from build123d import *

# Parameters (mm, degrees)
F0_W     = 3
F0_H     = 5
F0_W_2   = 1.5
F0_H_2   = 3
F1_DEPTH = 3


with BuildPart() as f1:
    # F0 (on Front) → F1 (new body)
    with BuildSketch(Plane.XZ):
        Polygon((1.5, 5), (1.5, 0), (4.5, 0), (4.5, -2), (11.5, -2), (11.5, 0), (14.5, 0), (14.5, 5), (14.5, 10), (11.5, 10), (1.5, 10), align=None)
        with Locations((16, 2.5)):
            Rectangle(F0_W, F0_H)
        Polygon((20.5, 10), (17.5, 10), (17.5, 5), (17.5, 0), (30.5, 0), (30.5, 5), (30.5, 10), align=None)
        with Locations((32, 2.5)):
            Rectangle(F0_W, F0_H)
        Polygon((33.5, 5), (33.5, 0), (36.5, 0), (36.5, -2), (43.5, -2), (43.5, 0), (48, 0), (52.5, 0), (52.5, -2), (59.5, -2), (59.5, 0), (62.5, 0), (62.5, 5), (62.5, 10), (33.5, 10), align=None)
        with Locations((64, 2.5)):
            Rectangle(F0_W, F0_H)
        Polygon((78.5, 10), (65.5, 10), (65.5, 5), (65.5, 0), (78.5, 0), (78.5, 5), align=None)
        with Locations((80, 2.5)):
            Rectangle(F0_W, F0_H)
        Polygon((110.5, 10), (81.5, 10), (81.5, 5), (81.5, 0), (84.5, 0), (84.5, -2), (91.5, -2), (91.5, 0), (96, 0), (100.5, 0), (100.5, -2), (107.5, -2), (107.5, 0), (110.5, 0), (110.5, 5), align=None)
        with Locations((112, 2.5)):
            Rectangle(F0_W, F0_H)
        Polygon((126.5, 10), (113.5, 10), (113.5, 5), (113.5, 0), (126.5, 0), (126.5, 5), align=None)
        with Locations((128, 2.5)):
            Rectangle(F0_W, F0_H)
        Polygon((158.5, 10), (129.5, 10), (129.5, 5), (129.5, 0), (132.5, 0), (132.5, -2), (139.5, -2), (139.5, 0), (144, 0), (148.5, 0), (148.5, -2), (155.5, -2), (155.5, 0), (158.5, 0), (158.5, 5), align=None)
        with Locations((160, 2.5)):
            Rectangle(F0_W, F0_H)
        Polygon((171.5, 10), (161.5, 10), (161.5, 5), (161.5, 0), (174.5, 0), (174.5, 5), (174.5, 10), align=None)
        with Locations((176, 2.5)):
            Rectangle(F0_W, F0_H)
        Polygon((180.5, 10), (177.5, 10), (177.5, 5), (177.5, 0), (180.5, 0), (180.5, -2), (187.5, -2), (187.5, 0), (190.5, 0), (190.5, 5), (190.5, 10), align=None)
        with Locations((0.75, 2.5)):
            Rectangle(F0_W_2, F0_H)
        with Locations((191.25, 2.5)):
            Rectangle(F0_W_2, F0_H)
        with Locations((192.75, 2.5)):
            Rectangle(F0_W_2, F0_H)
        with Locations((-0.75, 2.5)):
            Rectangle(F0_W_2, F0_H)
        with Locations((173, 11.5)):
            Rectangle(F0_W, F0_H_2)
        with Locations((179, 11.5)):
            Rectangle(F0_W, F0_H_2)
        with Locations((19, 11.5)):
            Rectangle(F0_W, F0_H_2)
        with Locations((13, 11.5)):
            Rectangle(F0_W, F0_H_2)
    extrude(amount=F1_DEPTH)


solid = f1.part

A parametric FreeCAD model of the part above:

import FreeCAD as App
import Part
import Sketcher
from FreeCAD import Vector

doc = App.newDocument("Part")
body = doc.addObject("PartDesign::Body", "Body")

sketch1 = body.newObject("Sketcher::SketchObject", "Sketch")
sketch1.AttachmentSupport = (doc.getObject("XZ_Plane"), [""])
sketch1.MapMode = "FlatFace"
sketch1.addGeometry(Part.LineSegment(Vector(4.5, 0, 0), Vector(4.5, -2, 0)), False)
sketch1.addGeometry(Part.LineSegment(Vector(4.5, -2, 0), Vector(11.5, -2, 0)), False)
sketch1.addGeometry(Part.LineSegment(Vector(11.5, -2, 0), Vector(11.5, 0, 0)), False)
sketch1.addGeometry(Part.LineSegment(Vector(11.5, 0, 0), Vector(36.5, 0, 0)), False)
sketch1.addGeometry(Part.LineSegment(Vector(36.5, 0, 0), Vector(36.5, -2, 0)), False)
sketch1.addGeometry(Part.LineSegment(Vector(36.5, -2, 0), Vector(43.5, -2, 0)), False)
sketch1.addGeometry(Part.LineSegment(Vector(43.5, -2, 0), Vector(43.5, 0, 0)), False)
sketch1.addGeometry(Part.LineSegment(Vector(43.5, 0, 0), Vector(52.5, 0, 0)), False)
sketch1.addGeometry(Part.LineSegment(Vector(52.5, 0, 0), Vector(52.5, -2, 0)), False)
sketch1.addGeometry(Part.LineSegment(Vector(52.5, -2, 0), Vector(59.5, -2, 0)), False)
sketch1.addGeometry(Part.LineSegment(Vector(59.5, -2, 0), Vector(59.5, 0, 0)), False)
sketch1.addGeometry(Part.LineSegment(Vector(59.5, 0, 0), Vector(84.5, 0, 0)), False)
sketch1.addGeometry(Part.LineSegment(Vector(84.5, 0, 0), Vector(84.5, -2, 0)), False)
sketch1.addGeometry(Part.LineSegment(Vector(84.5, -2, 0), Vector(91.5, -2, 0)), False)
sketch1.addGeometry(Part.LineSegment(Vector(91.5, -2, 0), Vector(91.5, 0, 0)), False)
sketch1.addGeometry(Part.LineSegment(Vector(91.5, 0, 0), Vector(100.5, 0, 0)), False)
sketch1.addGeometry(Part.LineSegment(Vector(100.5, 0, 0), Vector(100.5, -2, 0)), False)
sketch1.addGeometry(Part.LineSegment(Vector(100.5, -2, 0), Vector(107.5, -2, 0)), False)
sketch1.addGeometry(Part.LineSegment(Vector(107.5, -2, 0), Vector(107.5, 0, 0)), False)
sketch1.addGeometry(Part.LineSegment(Vector(107.5, 0, 0), Vector(132.5, 0, 0)), False)
sketch1.addGeometry(Part.LineSegment(Vector(132.5, 0, 0), Vector(132.5, -2, 0)), False)
sketch1.addGeometry(Part.LineSegment(Vector(132.5, -2, 0), Vector(139.5, -2, 0)), False)
sketch1.addGeometry(Part.LineSegment(Vector(139.5, -2, 0), Vector(139.5, 0, 0)), False)
sketch1.addGeometry(Part.LineSegment(Vector(139.5, 0, 0), Vector(148.5, 0, 0)), False)
sketch1.addGeometry(Part.LineSegment(Vector(148.5, 0, 0), Vector(148.5, -2, 0)), False)
sketch1.addGeometry(Part.LineSegment(Vector(148.5, -2, 0), Vector(155.5, -2, 0)), False)
sketch1.addGeometry(Part.LineSegment(Vector(155.5, -2, 0), Vector(155.5, 0, 0)), False)
sketch1.addGeometry(Part.LineSegment(Vector(155.5, 0, 0), Vector(180.5, 0, 0)), False)
sketch1.addGeometry(Part.LineSegment(Vector(180.5, 0, 0), Vector(180.5, -2, 0)), False)
sketch1.addGeometry(Part.LineSegment(Vector(180.5, -2, 0), Vector(187.5, -2, 0)), False)
sketch1.addGeometry(Part.LineSegment(Vector(187.5, -2, 0), Vector(187.5, 0, 0)), False)
sketch1.addGeometry(Part.LineSegment(Vector(187.5, 0, 0), Vector(193.5, 0, 0)), False)
sketch1.addGeometry(Part.LineSegment(Vector(193.5, 0, 0), Vector(193.5, 5, 0)), False)
sketch1.addGeometry(Part.LineSegment(Vector(193.5, 5, 0), Vector(190.5, 5, 0)), False)
sketch1.addGeometry(Part.LineSegment(Vector(190.5, 5, 0), Vector(190.5, 10, 0)), False)
sketch1.addGeometry(Part.LineSegment(Vector(190.5, 10, 0), Vector(180.5, 10, 0)), False)
sketch1.addGeometry(Part.LineSegment(Vector(180.5, 10, 0), Vector(180.5, 13, 0)), False)
sketch1.addGeometry(Part.LineSegment(Vector(180.5, 13, 0), Vector(177.5, 13, 0)), False)
sketch1.addGeometry(Part.LineSegment(Vector(177.5, 13, 0), Vector(177.5, 5, 0)), False)
sketch1.addGeometry(Part.LineSegment(Vector(177.5, 5, 0), Vector(174.5, 5, 0)), False)
sketch1.addGeometry(Part.LineSegment(Vector(174.5, 5, 0), Vector(174.5, 13, 0)), False)
sketch1.addGeometry(Part.LineSegment(Vector(174.5, 13, 0), Vector(171.5, 13, 0)), False)
sketch1.addGeometry(Part.LineSegment(Vector(171.5, 13, 0), Vector(171.5, 10, 0)), False)
sketch1.addGeometry(Part.LineSegment(Vector(171.5, 10, 0), Vector(161.5, 10, 0)), False)
sketch1.addGeometry(Part.LineSegment(Vector(161.5, 10, 0), Vector(161.5, 5, 0)), False)
sketch1.addGeometry(Part.LineSegment(Vector(161.5, 5, 0), Vector(158.5, 5, 0)), False)
sketch1.addGeometry(Part.LineSegment(Vector(158.5, 5, 0), Vector(158.5, 10, 0)), False)
sketch1.addGeometry(Part.LineSegment(Vector(158.5, 10, 0), Vector(129.5, 10, 0)), False)
sketch1.addGeometry(Part.LineSegment(Vector(129.5, 10, 0), Vector(129.5, 5, 0)), False)
sketch1.addGeometry(Part.LineSegment(Vector(129.5, 5, 0), Vector(126.5, 5, 0)), False)
sketch1.addGeometry(Part.LineSegment(Vector(126.5, 5, 0), Vector(126.5, 10, 0)), False)
sketch1.addGeometry(Part.LineSegment(Vector(126.5, 10, 0), Vector(113.5, 10, 0)), False)
sketch1.addGeometry(Part.LineSegment(Vector(113.5, 10, 0), Vector(113.5, 5, 0)), False)
sketch1.addGeometry(Part.LineSegment(Vector(113.5, 5, 0), Vector(110.5, 5, 0)), False)
sketch1.addGeometry(Part.LineSegment(Vector(110.5, 5, 0), Vector(110.5, 10, 0)), False)
sketch1.addGeometry(Part.LineSegment(Vector(110.5, 10, 0), Vector(81.5, 10, 0)), False)
sketch1.addGeometry(Part.LineSegment(Vector(81.5, 10, 0), Vector(81.5, 5, 0)), False)
sketch1.addGeometry(Part.LineSegment(Vector(81.5, 5, 0), Vector(78.5, 5, 0)), False)
sketch1.addGeometry(Part.LineSegment(Vector(78.5, 5, 0), Vector(78.5, 10, 0)), False)
sketch1.addGeometry(Part.LineSegment(Vector(78.5, 10, 0), Vector(65.5, 10, 0)), False)
sketch1.addGeometry(Part.LineSegment(Vector(65.5, 10, 0), Vector(65.5, 5, 0)), False)
sketch1.addGeometry(Part.LineSegment(Vector(65.5, 5, 0), Vector(62.5, 5, 0)), False)
sketch1.addGeometry(Part.LineSegment(Vector(62.5, 5, 0), Vector(62.5, 10, 0)), False)
sketch1.addGeometry(Part.LineSegment(Vector(62.5, 10, 0), Vector(33.5, 10, 0)), False)
sketch1.addGeometry(Part.LineSegment(Vector(33.5, 10, 0), Vector(33.5, 5, 0)), False)
sketch1.addGeometry(Part.LineSegment(Vector(33.5, 5, 0), Vector(30.5, 5, 0)), False)
sketch1.addGeometry(Part.LineSegment(Vector(30.5, 5, 0), Vector(30.5, 10, 0)), False)
sketch1.addGeometry(Part.LineSegment(Vector(30.5, 10, 0), Vector(20.5, 10, 0)), False)
sketch1.addGeometry(Part.LineSegment(Vector(20.5, 10, 0), Vector(20.5, 13, 0)), False)
sketch1.addGeometry(Part.LineSegment(Vector(20.5, 13, 0), Vector(17.5, 13, 0)), False)
sketch1.addGeometry(Part.LineSegment(Vector(17.5, 13, 0), Vector(17.5, 5, 0)), False)
sketch1.addGeometry(Part.LineSegment(Vector(17.5, 5, 0), Vector(14.5, 5, 0)), False)
sketch1.addGeometry(Part.LineSegment(Vector(14.5, 5, 0), Vector(14.5, 13, 0)), False)
sketch1.addGeometry(Part.LineSegment(Vector(14.5, 13, 0), Vector(11.5, 13, 0)), False)
sketch1.addGeometry(Part.LineSegment(Vector(11.5, 13, 0), Vector(11.5, 10, 0)), False)
sketch1.addGeometry(Part.LineSegment(Vector(11.5, 10, 0), Vector(1.5, 10, 0)), False)
sketch1.addGeometry(Part.LineSegment(Vector(1.5, 10, 0), Vector(1.5, 5, 0)), False)
sketch1.addGeometry(Part.LineSegment(Vector(1.5, 5, 0), Vector(-1.5, 5, 0)), False)
sketch1.addGeometry(Part.LineSegment(Vector(-1.5, 5, 0), Vector(-1.5, 0, 0)), False)
sketch1.addGeometry(Part.LineSegment(Vector(-1.5, 0, 0), Vector(4.5, 0, 0)), False)
sketch1.addConstraint(Sketcher.Constraint("Coincident", 0, 2, 1, 1))
sketch1.addConstraint(Sketcher.Constraint("Coincident", 1, 2, 2, 1))
sketch1.addConstraint(Sketcher.Constraint("Coincident", 2, 2, 3, 1))
sketch1.addConstraint(Sketcher.Constraint("Coincident", 3, 2, 4, 1))
sketch1.addConstraint(Sketcher.Constraint("Coincident", 4, 2, 5, 1))
sketch1.addConstraint(Sketcher.Constraint("Coincident", 5, 2, 6, 1))
sketch1.addConstraint(Sketcher.Constraint("Coincident", 6, 2, 7, 1))
sketch1.addConstraint(Sketcher.Constraint("Coincident", 7, 2, 8, 1))
sketch1.addConstraint(Sketcher.Constraint("Coincident", 8, 2, 9, 1))
sketch1.addConstraint(Sketcher.Constraint("Coincident", 9, 2, 10, 1))
sketch1.addConstraint(Sketcher.Constraint("Coincident", 10, 2, 11, 1))
sketch1.addConstraint(Sketcher.Constraint("Coincident", 11, 2, 12, 1))
sketch1.addConstraint(Sketcher.Constraint("Coincident", 12, 2, 13, 1))
sketch1.addConstraint(Sketcher.Constraint("Coincident", 13, 2, 14, 1))
sketch1.addConstraint(Sketcher.Constraint("Coincident", 14, 2, 15, 1))
sketch1.addConstraint(Sketcher.Constraint("Coincident", 15, 2, 16, 1))
sketch1.addConstraint(Sketcher.Constraint("Coincident", 16, 2, 17, 1))
sketch1.addConstraint(Sketcher.Constraint("Coincident", 17, 2, 18, 1))
sketch1.addConstraint(Sketcher.Constraint("Coincident", 18, 2, 19, 1))
sketch1.addConstraint(Sketcher.Constraint("Coincident", 19, 2, 20, 1))
sketch1.addConstraint(Sketcher.Constraint("Coincident", 20, 2, 21, 1))
sketch1.addConstraint(Sketcher.Constraint("Coincident", 21, 2, 22, 1))
sketch1.addConstraint(Sketcher.Constraint("Coincident", 22, 2, 23, 1))
sketch1.addConstraint(Sketcher.Constraint("Coincident", 23, 2, 24, 1))
sketch1.addConstraint(Sketcher.Constraint("Coincident", 24, 2, 25, 1))
sketch1.addConstraint(Sketcher.Constraint("Coincident", 25, 2, 26, 1))
sketch1.addConstraint(Sketcher.Constraint("Coincident", 26, 2, 27, 1))
sketch1.addConstraint(Sketcher.Constraint("Coincident", 27, 2, 28, 1))
sketch1.addConstraint(Sketcher.Constraint("Coincident", 28, 2, 29, 1))
sketch1.addConstraint(Sketcher.Constraint("Coincident", 29, 2, 30, 1))
sketch1.addConstraint(Sketcher.Constraint("Coincident", 30, 2, 31, 1))
sketch1.addConstraint(Sketcher.Constraint("Coincident", 31, 2, 32, 1))
sketch1.addConstraint(Sketcher.Constraint("Coincident", 32, 2, 33, 1))
sketch1.addConstraint(Sketcher.Constraint("Coincident", 33, 2, 34, 1))
sketch1.addConstraint(Sketcher.Constraint("Coincident", 34, 2, 35, 1))
sketch1.addConstraint(Sketcher.Constraint("Coincident", 35, 2, 36, 1))
sketch1.addConstraint(Sketcher.Constraint("Coincident", 36, 2, 37, 1))
sketch1.addConstraint(Sketcher.Constraint("Coincident", 37, 2, 38, 1))
sketch1.addConstraint(Sketcher.Constraint("Coincident", 38, 2, 39, 1))
sketch1.addConstraint(Sketcher.Constraint("Coincident", 39, 2, 40, 1))
sketch1.addConstraint(Sketcher.Constraint("Coincident", 40, 2, 41, 1))
sketch1.addConstraint(Sketcher.Constraint("Coincident", 41, 2, 42, 1))
sketch1.addConstraint(Sketcher.Constraint("Coincident", 42, 2, 43, 1))
sketch1.addConstraint(Sketcher.Constraint("Coincident", 43, 2, 44, 1))
sketch1.addConstraint(Sketcher.Constraint("Coincident", 44, 2, 45, 1))
sketch1.addConstraint(Sketcher.Constraint("Coincident", 45, 2, 46, 1))
sketch1.addConstraint(Sketcher.Constraint("Coincident", 46, 2, 47, 1))
sketch1.addConstraint(Sketcher.Constraint("Coincident", 47, 2, 48, 1))
sketch1.addConstraint(Sketcher.Constraint("Coincident", 48, 2, 49, 1))
sketch1.addConstraint(Sketcher.Constraint("Coincident", 49, 2, 50, 1))
sketch1.addConstraint(Sketcher.Constraint("Coincident", 50, 2, 51, 1))
sketch1.addConstraint(Sketcher.Constraint("Coincident", 51, 2, 52, 1))
sketch1.addConstraint(Sketcher.Constraint("Coincident", 52, 2, 53, 1))
sketch1.addConstraint(Sketcher.Constraint("Coincident", 53, 2, 54, 1))
sketch1.addConstraint(Sketcher.Constraint("Coincident", 54, 2, 55, 1))
sketch1.addConstraint(Sketcher.Constraint("Coincident", 55, 2, 56, 1))
sketch1.addConstraint(Sketcher.Constraint("Coincident", 56, 2, 57, 1))
sketch1.addConstraint(Sketcher.Constraint("Coincident", 57, 2, 58, 1))
sketch1.addConstraint(Sketcher.Constraint("Coincident", 58, 2, 59, 1))
sketch1.addConstraint(Sketcher.Constraint("Coincident", 59, 2, 60, 1))
sketch1.addConstraint(Sketcher.Constraint("Coincident", 60, 2, 61, 1))
sketch1.addConstraint(Sketcher.Constraint("Coincident", 61, 2, 62, 1))
sketch1.addConstraint(Sketcher.Constraint("Coincident", 62, 2, 63, 1))
sketch1.addConstraint(Sketcher.Constraint("Coincident", 63, 2, 64, 1))
sketch1.addConstraint(Sketcher.Constraint("Coincident", 64, 2, 65, 1))
sketch1.addConstraint(Sketcher.Constraint("Coincident", 65, 2, 66, 1))
sketch1.addConstraint(Sketcher.Constraint("Coincident", 66, 2, 67, 1))
sketch1.addConstraint(Sketcher.Constraint("Coincident", 67, 2, 68, 1))
sketch1.addConstraint(Sketcher.Constraint("Coincident", 68, 2, 69, 1))
sketch1.addConstraint(Sketcher.Constraint("Coincident", 69, 2, 70, 1))
sketch1.addConstraint(Sketcher.Constraint("Coincident", 70, 2, 71, 1))
sketch1.addConstraint(Sketcher.Constraint("Coincident", 71, 2, 72, 1))
sketch1.addConstraint(Sketcher.Constraint("Coincident", 72, 2, 73, 1))
sketch1.addConstraint(Sketcher.Constraint("Coincident", 73, 2, 74, 1))
sketch1.addConstraint(Sketcher.Constraint("Coincident", 74, 2, 75, 1))
sketch1.addConstraint(Sketcher.Constraint("Coincident", 75, 2, 76, 1))
sketch1.addConstraint(Sketcher.Constraint("Coincident", 76, 2, 77, 1))
sketch1.addConstraint(Sketcher.Constraint("Coincident", 77, 2, 78, 1))
sketch1.addConstraint(Sketcher.Constraint("Coincident", 78, 2, 79, 1))
sketch1.addConstraint(Sketcher.Constraint("Coincident", 79, 2, 0, 1))
sketch1.addConstraint(Sketcher.Constraint("Vertical", 0))
sketch1.addConstraint(Sketcher.Constraint("Horizontal", 1))
sketch1.addConstraint(Sketcher.Constraint("Vertical", 2))
sketch1.addConstraint(Sketcher.Constraint("Horizontal", 3))
sketch1.addConstraint(Sketcher.Constraint("Vertical", 4))
sketch1.addConstraint(Sketcher.Constraint("Horizontal", 5))
sketch1.addConstraint(Sketcher.Constraint("Vertical", 6))
sketch1.addConstraint(Sketcher.Constraint("Horizontal", 7))
sketch1.addConstraint(Sketcher.Constraint("Vertical", 8))
sketch1.addConstraint(Sketcher.Constraint("Horizontal", 9))
sketch1.addConstraint(Sketcher.Constraint("Vertical", 10))
sketch1.addConstraint(Sketcher.Constraint("Horizontal", 11))
sketch1.addConstraint(Sketcher.Constraint("Vertical", 12))
sketch1.addConstraint(Sketcher.Constraint("Horizontal", 13))
sketch1.addConstraint(Sketcher.Constraint("Vertical", 14))
sketch1.addConstraint(Sketcher.Constraint("Horizontal", 15))
sketch1.addConstraint(Sketcher.Constraint("Vertical", 16))
sketch1.addConstraint(Sketcher.Constraint("Horizontal", 17))
sketch1.addConstraint(Sketcher.Constraint("Vertical", 18))
sketch1.addConstraint(Sketcher.Constraint("Horizontal", 19))
sketch1.addConstraint(Sketcher.Constraint("Vertical", 20))
sketch1.addConstraint(Sketcher.Constraint("Horizontal", 21))
sketch1.addConstraint(Sketcher.Constraint("Vertical", 22))
sketch1.addConstraint(Sketcher.Constraint("Horizontal", 23))
sketch1.addConstraint(Sketcher.Constraint("Vertical", 24))
sketch1.addConstraint(Sketcher.Constraint("Horizontal", 25))
sketch1.addConstraint(Sketcher.Constraint("Vertical", 26))
sketch1.addConstraint(Sketcher.Constraint("Horizontal", 27))
sketch1.addConstraint(Sketcher.Constraint("Vertical", 28))
sketch1.addConstraint(Sketcher.Constraint("Horizontal", 29))
sketch1.addConstraint(Sketcher.Constraint("Vertical", 30))
sketch1.addConstraint(Sketcher.Constraint("Horizontal", 31))
sketch1.addConstraint(Sketcher.Constraint("Vertical", 32))
sketch1.addConstraint(Sketcher.Constraint("Horizontal", 33))
sketch1.addConstraint(Sketcher.Constraint("Vertical", 34))
sketch1.addConstraint(Sketcher.Constraint("Horizontal", 35))
sketch1.addConstraint(Sketcher.Constraint("Vertical", 36))
sketch1.addConstraint(Sketcher.Constraint("Horizontal", 37))
sketch1.addConstraint(Sketcher.Constraint("Vertical", 38))
sketch1.addConstraint(Sketcher.Constraint("Horizontal", 39))
sketch1.addConstraint(Sketcher.Constraint("Vertical", 40))
sketch1.addConstraint(Sketcher.Constraint("Horizontal", 41))
sketch1.addConstraint(Sketcher.Constraint("Vertical", 42))
sketch1.addConstraint(Sketcher.Constraint("Horizontal", 43))
sketch1.addConstraint(Sketcher.Constraint("Vertical", 44))
sketch1.addConstraint(Sketcher.Constraint("Horizontal", 45))
sketch1.addConstraint(Sketcher.Constraint("Vertical", 46))
sketch1.addConstraint(Sketcher.Constraint("Horizontal", 47))
sketch1.addConstraint(Sketcher.Constraint("Vertical", 48))
sketch1.addConstraint(Sketcher.Constraint("Horizontal", 49))
sketch1.addConstraint(Sketcher.Constraint("Vertical", 50))
sketch1.addConstraint(Sketcher.Constraint("Horizontal", 51))
sketch1.addConstraint(Sketcher.Constraint("Vertical", 52))
sketch1.addConstraint(Sketcher.Constraint("Horizontal", 53))
sketch1.addConstraint(Sketcher.Constraint("Vertical", 54))
sketch1.addConstraint(Sketcher.Constraint("Horizontal", 55))
sketch1.addConstraint(Sketcher.Constraint("Vertical", 56))
sketch1.addConstraint(Sketcher.Constraint("Horizontal", 57))
sketch1.addConstraint(Sketcher.Constraint("Vertical", 58))
sketch1.addConstraint(Sketcher.Constraint("Horizontal", 59))
sketch1.addConstraint(Sketcher.Constraint("Vertical", 60))
sketch1.addConstraint(Sketcher.Constraint("Horizontal", 61))
sketch1.addConstraint(Sketcher.Constraint("Vertical", 62))
sketch1.addConstraint(Sketcher.Constraint("Horizontal", 63))
sketch1.addConstraint(Sketcher.Constraint("Vertical", 64))
sketch1.addConstraint(Sketcher.Constraint("Horizontal", 65))
sketch1.addConstraint(Sketcher.Constraint("Vertical", 66))
sketch1.addConstraint(Sketcher.Constraint("Horizontal", 67))
sketch1.addConstraint(Sketcher.Constraint("Vertical", 68))
sketch1.addConstraint(Sketcher.Constraint("Horizontal", 69))
sketch1.addConstraint(Sketcher.Constraint("Vertical", 70))
sketch1.addConstraint(Sketcher.Constraint("Horizontal", 71))
sketch1.addConstraint(Sketcher.Constraint("Vertical", 72))
sketch1.addConstraint(Sketcher.Constraint("Horizontal", 73))
sketch1.addConstraint(Sketcher.Constraint("Vertical", 74))
sketch1.addConstraint(Sketcher.Constraint("Horizontal", 75))
sketch1.addConstraint(Sketcher.Constraint("Vertical", 76))
sketch1.addConstraint(Sketcher.Constraint("Horizontal", 77))
sketch1.addConstraint(Sketcher.Constraint("Vertical", 78))
sketch1.addConstraint(Sketcher.Constraint("Horizontal", 79))
sketch1.addConstraint(Sketcher.Constraint("PointOnObject", 2, 2, -1))
sketch1.addConstraint(Sketcher.Constraint("PointOnObject", 6, 2, -1))
sketch1.addConstraint(Sketcher.Constraint("PointOnObject", 10, 2, -1))
sketch1.addConstraint(Sketcher.Constraint("PointOnObject", 14, 2, -1))
sketch1.addConstraint(Sketcher.Constraint("PointOnObject", 18, 2, -1))
sketch1.addConstraint(Sketcher.Constraint("PointOnObject", 22, 2, -1))
sketch1.addConstraint(Sketcher.Constraint("PointOnObject", 26, 2, -1))
sketch1.addConstraint(Sketcher.Constraint("PointOnObject", 30, 2, -1))
sketch1.addConstraint(Sketcher.Constraint("PointOnObject", 78, 2, -1))
sketch1.addConstraint(Sketcher.Constraint("Horizontal", 1, 2, 4, 2))
sketch1.addConstraint(Sketcher.Constraint("Horizontal", 5, 2, 8, 2))
sketch1.addConstraint(Sketcher.Constraint("Horizontal", 9, 2, 12, 2))
sketch1.addConstraint(Sketcher.Constraint("Horizontal", 13, 2, 16, 2))
sketch1.addConstraint(Sketcher.Constraint("Horizontal", 17, 2, 20, 2))
sketch1.addConstraint(Sketcher.Constraint("Horizontal", 21, 2, 24, 2))
sketch1.addConstraint(Sketcher.Constraint("Horizontal", 25, 2, 28, 2))
sketch1.addConstraint(Sketcher.Constraint("Horizontal", 33, 2, 38, 2))
sketch1.addConstraint(Sketcher.Constraint("Horizontal", 37, 2, 40, 2))
sketch1.addConstraint(Sketcher.Constraint("Horizontal", 35, 2, 42, 2))
sketch1.addConstraint(Sketcher.Constraint("Horizontal", 39, 2, 44, 2))
sketch1.addConstraint(Sketcher.Constraint("Horizontal", 43, 2, 46, 2))
sketch1.addConstraint(Sketcher.Constraint("Horizontal", 45, 2, 48, 2))
sketch1.addConstraint(Sketcher.Constraint("Horizontal", 47, 2, 50, 2))
sketch1.addConstraint(Sketcher.Constraint("Horizontal", 49, 2, 52, 2))
sketch1.addConstraint(Sketcher.Constraint("Horizontal", 51, 2, 54, 2))
sketch1.addConstraint(Sketcher.Constraint("Horizontal", 53, 2, 56, 2))
sketch1.addConstraint(Sketcher.Constraint("Horizontal", 55, 2, 58, 2))
sketch1.addConstraint(Sketcher.Constraint("Horizontal", 57, 2, 60, 2))
sketch1.addConstraint(Sketcher.Constraint("Horizontal", 59, 2, 62, 2))
sketch1.addConstraint(Sketcher.Constraint("Horizontal", 61, 2, 64, 2))
sketch1.addConstraint(Sketcher.Constraint("Horizontal", 63, 2, 66, 2))
sketch1.addConstraint(Sketcher.Constraint("Horizontal", 41, 2, 68, 2))
sketch1.addConstraint(Sketcher.Constraint("Horizontal", 65, 2, 70, 2))
sketch1.addConstraint(Sketcher.Constraint("Horizontal", 69, 2, 72, 2))
sketch1.addConstraint(Sketcher.Constraint("Horizontal", 67, 2, 74, 2))
sketch1.addConstraint(Sketcher.Constraint("Horizontal", 71, 2, 76, 2))
sketch1.addConstraint(Sketcher.Constraint("Vertical", 28, 2, 35, 2))
sketch1.addConstraint(Sketcher.Constraint("Vertical", 2, 2, 73, 2))
sketch1.addConstraint(Sketcher.Constraint("Equal", 1, 5))
sketch1.addConstraint(Sketcher.Constraint("Equal", 5, 9))
sketch1.addConstraint(Sketcher.Constraint("Equal", 3, 11))
sketch1.addConstraint(Sketcher.Constraint("Equal", 9, 13))
sketch1.addConstraint(Sketcher.Constraint("Equal", 7, 15))
sketch1.addConstraint(Sketcher.Constraint("Equal", 13, 17))
sketch1.addConstraint(Sketcher.Constraint("Equal", 11, 19))
sketch1.addConstraint(Sketcher.Constraint("Equal", 17, 21))
sketch1.addConstraint(Sketcher.Constraint("Equal", 15, 23))
sketch1.addConstraint(Sketcher.Constraint("Equal", 21, 25))
sketch1.addConstraint(Sketcher.Constraint("Equal", 19, 27))
sketch1.addConstraint(Sketcher.Constraint("Equal", 25, 29))
sketch1.addConstraint(Sketcher.Constraint("Equal", 33, 37))
sketch1.addConstraint(Sketcher.Constraint("Equal", 37, 39))
sketch1.addConstraint(Sketcher.Constraint("Equal", 39, 41))
sketch1.addConstraint(Sketcher.Constraint("Equal", 35, 43))
sketch1.addConstraint(Sketcher.Constraint("Equal", 41, 45))
sketch1.addConstraint(Sketcher.Constraint("Equal", 45, 49))
sketch1.addConstraint(Sketcher.Constraint("Equal", 49, 53))
sketch1.addConstraint(Sketcher.Constraint("Equal", 47, 55))
sketch1.addConstraint(Sketcher.Constraint("Equal", 53, 57))
sketch1.addConstraint(Sketcher.Constraint("Equal", 51, 59))
sketch1.addConstraint(Sketcher.Constraint("Equal", 57, 61))
sketch1.addConstraint(Sketcher.Constraint("Equal", 55, 63))
sketch1.addConstraint(Sketcher.Constraint("Equal", 61, 65))
sketch1.addConstraint(Sketcher.Constraint("Equal", 43, 67))
sketch1.addConstraint(Sketcher.Constraint("Equal", 65, 69))
sketch1.addConstraint(Sketcher.Constraint("Equal", 69, 71))
sketch1.addConstraint(Sketcher.Constraint("Equal", 71, 73))
sketch1.addConstraint(Sketcher.Constraint("Equal", 67, 75))
sketch1.addConstraint(Sketcher.Constraint("Equal", 73, 77))
sketch1.addConstraint(Sketcher.Constraint("Equal", 32, 34))
sketch1.addConstraint(Sketcher.Constraint("Equal", 77, 36))
sketch1.addConstraint(Sketcher.Constraint("DistanceX", 1, 1, 1, 2, 7.0))
sketch1.addConstraint(Sketcher.Constraint("DistanceX", 3, 1, 3, 2, 25.0))
sketch1.addConstraint(Sketcher.Constraint("DistanceX", 7, 1, 7, 2, 9.0))
sketch1.addConstraint(Sketcher.Constraint("DistanceX", 31, 1, 31, 2, 6.0))
sketch1.addConstraint(Sketcher.Constraint("DistanceX", 33, 2, 33, 1, 3.0))
sketch1.addConstraint(Sketcher.Constraint("DistanceX", 47, 2, 47, 1, 29.0))
sketch1.addConstraint(Sketcher.Constraint("DistanceY", 0, 2, 0, 1, 2.0))
sketch1.addConstraint(Sketcher.Constraint("DistanceY", 32, 1, 32, 2, 5.0))
sketch1.addConstraint(Sketcher.Constraint("DistanceX", -1, 1, 0, 2, 4.5))
pad1 = body.newObject("PartDesign::Pad", "Pad")
pad1.Profile = sketch1
pad1.Length = 3

doc.recompute()
